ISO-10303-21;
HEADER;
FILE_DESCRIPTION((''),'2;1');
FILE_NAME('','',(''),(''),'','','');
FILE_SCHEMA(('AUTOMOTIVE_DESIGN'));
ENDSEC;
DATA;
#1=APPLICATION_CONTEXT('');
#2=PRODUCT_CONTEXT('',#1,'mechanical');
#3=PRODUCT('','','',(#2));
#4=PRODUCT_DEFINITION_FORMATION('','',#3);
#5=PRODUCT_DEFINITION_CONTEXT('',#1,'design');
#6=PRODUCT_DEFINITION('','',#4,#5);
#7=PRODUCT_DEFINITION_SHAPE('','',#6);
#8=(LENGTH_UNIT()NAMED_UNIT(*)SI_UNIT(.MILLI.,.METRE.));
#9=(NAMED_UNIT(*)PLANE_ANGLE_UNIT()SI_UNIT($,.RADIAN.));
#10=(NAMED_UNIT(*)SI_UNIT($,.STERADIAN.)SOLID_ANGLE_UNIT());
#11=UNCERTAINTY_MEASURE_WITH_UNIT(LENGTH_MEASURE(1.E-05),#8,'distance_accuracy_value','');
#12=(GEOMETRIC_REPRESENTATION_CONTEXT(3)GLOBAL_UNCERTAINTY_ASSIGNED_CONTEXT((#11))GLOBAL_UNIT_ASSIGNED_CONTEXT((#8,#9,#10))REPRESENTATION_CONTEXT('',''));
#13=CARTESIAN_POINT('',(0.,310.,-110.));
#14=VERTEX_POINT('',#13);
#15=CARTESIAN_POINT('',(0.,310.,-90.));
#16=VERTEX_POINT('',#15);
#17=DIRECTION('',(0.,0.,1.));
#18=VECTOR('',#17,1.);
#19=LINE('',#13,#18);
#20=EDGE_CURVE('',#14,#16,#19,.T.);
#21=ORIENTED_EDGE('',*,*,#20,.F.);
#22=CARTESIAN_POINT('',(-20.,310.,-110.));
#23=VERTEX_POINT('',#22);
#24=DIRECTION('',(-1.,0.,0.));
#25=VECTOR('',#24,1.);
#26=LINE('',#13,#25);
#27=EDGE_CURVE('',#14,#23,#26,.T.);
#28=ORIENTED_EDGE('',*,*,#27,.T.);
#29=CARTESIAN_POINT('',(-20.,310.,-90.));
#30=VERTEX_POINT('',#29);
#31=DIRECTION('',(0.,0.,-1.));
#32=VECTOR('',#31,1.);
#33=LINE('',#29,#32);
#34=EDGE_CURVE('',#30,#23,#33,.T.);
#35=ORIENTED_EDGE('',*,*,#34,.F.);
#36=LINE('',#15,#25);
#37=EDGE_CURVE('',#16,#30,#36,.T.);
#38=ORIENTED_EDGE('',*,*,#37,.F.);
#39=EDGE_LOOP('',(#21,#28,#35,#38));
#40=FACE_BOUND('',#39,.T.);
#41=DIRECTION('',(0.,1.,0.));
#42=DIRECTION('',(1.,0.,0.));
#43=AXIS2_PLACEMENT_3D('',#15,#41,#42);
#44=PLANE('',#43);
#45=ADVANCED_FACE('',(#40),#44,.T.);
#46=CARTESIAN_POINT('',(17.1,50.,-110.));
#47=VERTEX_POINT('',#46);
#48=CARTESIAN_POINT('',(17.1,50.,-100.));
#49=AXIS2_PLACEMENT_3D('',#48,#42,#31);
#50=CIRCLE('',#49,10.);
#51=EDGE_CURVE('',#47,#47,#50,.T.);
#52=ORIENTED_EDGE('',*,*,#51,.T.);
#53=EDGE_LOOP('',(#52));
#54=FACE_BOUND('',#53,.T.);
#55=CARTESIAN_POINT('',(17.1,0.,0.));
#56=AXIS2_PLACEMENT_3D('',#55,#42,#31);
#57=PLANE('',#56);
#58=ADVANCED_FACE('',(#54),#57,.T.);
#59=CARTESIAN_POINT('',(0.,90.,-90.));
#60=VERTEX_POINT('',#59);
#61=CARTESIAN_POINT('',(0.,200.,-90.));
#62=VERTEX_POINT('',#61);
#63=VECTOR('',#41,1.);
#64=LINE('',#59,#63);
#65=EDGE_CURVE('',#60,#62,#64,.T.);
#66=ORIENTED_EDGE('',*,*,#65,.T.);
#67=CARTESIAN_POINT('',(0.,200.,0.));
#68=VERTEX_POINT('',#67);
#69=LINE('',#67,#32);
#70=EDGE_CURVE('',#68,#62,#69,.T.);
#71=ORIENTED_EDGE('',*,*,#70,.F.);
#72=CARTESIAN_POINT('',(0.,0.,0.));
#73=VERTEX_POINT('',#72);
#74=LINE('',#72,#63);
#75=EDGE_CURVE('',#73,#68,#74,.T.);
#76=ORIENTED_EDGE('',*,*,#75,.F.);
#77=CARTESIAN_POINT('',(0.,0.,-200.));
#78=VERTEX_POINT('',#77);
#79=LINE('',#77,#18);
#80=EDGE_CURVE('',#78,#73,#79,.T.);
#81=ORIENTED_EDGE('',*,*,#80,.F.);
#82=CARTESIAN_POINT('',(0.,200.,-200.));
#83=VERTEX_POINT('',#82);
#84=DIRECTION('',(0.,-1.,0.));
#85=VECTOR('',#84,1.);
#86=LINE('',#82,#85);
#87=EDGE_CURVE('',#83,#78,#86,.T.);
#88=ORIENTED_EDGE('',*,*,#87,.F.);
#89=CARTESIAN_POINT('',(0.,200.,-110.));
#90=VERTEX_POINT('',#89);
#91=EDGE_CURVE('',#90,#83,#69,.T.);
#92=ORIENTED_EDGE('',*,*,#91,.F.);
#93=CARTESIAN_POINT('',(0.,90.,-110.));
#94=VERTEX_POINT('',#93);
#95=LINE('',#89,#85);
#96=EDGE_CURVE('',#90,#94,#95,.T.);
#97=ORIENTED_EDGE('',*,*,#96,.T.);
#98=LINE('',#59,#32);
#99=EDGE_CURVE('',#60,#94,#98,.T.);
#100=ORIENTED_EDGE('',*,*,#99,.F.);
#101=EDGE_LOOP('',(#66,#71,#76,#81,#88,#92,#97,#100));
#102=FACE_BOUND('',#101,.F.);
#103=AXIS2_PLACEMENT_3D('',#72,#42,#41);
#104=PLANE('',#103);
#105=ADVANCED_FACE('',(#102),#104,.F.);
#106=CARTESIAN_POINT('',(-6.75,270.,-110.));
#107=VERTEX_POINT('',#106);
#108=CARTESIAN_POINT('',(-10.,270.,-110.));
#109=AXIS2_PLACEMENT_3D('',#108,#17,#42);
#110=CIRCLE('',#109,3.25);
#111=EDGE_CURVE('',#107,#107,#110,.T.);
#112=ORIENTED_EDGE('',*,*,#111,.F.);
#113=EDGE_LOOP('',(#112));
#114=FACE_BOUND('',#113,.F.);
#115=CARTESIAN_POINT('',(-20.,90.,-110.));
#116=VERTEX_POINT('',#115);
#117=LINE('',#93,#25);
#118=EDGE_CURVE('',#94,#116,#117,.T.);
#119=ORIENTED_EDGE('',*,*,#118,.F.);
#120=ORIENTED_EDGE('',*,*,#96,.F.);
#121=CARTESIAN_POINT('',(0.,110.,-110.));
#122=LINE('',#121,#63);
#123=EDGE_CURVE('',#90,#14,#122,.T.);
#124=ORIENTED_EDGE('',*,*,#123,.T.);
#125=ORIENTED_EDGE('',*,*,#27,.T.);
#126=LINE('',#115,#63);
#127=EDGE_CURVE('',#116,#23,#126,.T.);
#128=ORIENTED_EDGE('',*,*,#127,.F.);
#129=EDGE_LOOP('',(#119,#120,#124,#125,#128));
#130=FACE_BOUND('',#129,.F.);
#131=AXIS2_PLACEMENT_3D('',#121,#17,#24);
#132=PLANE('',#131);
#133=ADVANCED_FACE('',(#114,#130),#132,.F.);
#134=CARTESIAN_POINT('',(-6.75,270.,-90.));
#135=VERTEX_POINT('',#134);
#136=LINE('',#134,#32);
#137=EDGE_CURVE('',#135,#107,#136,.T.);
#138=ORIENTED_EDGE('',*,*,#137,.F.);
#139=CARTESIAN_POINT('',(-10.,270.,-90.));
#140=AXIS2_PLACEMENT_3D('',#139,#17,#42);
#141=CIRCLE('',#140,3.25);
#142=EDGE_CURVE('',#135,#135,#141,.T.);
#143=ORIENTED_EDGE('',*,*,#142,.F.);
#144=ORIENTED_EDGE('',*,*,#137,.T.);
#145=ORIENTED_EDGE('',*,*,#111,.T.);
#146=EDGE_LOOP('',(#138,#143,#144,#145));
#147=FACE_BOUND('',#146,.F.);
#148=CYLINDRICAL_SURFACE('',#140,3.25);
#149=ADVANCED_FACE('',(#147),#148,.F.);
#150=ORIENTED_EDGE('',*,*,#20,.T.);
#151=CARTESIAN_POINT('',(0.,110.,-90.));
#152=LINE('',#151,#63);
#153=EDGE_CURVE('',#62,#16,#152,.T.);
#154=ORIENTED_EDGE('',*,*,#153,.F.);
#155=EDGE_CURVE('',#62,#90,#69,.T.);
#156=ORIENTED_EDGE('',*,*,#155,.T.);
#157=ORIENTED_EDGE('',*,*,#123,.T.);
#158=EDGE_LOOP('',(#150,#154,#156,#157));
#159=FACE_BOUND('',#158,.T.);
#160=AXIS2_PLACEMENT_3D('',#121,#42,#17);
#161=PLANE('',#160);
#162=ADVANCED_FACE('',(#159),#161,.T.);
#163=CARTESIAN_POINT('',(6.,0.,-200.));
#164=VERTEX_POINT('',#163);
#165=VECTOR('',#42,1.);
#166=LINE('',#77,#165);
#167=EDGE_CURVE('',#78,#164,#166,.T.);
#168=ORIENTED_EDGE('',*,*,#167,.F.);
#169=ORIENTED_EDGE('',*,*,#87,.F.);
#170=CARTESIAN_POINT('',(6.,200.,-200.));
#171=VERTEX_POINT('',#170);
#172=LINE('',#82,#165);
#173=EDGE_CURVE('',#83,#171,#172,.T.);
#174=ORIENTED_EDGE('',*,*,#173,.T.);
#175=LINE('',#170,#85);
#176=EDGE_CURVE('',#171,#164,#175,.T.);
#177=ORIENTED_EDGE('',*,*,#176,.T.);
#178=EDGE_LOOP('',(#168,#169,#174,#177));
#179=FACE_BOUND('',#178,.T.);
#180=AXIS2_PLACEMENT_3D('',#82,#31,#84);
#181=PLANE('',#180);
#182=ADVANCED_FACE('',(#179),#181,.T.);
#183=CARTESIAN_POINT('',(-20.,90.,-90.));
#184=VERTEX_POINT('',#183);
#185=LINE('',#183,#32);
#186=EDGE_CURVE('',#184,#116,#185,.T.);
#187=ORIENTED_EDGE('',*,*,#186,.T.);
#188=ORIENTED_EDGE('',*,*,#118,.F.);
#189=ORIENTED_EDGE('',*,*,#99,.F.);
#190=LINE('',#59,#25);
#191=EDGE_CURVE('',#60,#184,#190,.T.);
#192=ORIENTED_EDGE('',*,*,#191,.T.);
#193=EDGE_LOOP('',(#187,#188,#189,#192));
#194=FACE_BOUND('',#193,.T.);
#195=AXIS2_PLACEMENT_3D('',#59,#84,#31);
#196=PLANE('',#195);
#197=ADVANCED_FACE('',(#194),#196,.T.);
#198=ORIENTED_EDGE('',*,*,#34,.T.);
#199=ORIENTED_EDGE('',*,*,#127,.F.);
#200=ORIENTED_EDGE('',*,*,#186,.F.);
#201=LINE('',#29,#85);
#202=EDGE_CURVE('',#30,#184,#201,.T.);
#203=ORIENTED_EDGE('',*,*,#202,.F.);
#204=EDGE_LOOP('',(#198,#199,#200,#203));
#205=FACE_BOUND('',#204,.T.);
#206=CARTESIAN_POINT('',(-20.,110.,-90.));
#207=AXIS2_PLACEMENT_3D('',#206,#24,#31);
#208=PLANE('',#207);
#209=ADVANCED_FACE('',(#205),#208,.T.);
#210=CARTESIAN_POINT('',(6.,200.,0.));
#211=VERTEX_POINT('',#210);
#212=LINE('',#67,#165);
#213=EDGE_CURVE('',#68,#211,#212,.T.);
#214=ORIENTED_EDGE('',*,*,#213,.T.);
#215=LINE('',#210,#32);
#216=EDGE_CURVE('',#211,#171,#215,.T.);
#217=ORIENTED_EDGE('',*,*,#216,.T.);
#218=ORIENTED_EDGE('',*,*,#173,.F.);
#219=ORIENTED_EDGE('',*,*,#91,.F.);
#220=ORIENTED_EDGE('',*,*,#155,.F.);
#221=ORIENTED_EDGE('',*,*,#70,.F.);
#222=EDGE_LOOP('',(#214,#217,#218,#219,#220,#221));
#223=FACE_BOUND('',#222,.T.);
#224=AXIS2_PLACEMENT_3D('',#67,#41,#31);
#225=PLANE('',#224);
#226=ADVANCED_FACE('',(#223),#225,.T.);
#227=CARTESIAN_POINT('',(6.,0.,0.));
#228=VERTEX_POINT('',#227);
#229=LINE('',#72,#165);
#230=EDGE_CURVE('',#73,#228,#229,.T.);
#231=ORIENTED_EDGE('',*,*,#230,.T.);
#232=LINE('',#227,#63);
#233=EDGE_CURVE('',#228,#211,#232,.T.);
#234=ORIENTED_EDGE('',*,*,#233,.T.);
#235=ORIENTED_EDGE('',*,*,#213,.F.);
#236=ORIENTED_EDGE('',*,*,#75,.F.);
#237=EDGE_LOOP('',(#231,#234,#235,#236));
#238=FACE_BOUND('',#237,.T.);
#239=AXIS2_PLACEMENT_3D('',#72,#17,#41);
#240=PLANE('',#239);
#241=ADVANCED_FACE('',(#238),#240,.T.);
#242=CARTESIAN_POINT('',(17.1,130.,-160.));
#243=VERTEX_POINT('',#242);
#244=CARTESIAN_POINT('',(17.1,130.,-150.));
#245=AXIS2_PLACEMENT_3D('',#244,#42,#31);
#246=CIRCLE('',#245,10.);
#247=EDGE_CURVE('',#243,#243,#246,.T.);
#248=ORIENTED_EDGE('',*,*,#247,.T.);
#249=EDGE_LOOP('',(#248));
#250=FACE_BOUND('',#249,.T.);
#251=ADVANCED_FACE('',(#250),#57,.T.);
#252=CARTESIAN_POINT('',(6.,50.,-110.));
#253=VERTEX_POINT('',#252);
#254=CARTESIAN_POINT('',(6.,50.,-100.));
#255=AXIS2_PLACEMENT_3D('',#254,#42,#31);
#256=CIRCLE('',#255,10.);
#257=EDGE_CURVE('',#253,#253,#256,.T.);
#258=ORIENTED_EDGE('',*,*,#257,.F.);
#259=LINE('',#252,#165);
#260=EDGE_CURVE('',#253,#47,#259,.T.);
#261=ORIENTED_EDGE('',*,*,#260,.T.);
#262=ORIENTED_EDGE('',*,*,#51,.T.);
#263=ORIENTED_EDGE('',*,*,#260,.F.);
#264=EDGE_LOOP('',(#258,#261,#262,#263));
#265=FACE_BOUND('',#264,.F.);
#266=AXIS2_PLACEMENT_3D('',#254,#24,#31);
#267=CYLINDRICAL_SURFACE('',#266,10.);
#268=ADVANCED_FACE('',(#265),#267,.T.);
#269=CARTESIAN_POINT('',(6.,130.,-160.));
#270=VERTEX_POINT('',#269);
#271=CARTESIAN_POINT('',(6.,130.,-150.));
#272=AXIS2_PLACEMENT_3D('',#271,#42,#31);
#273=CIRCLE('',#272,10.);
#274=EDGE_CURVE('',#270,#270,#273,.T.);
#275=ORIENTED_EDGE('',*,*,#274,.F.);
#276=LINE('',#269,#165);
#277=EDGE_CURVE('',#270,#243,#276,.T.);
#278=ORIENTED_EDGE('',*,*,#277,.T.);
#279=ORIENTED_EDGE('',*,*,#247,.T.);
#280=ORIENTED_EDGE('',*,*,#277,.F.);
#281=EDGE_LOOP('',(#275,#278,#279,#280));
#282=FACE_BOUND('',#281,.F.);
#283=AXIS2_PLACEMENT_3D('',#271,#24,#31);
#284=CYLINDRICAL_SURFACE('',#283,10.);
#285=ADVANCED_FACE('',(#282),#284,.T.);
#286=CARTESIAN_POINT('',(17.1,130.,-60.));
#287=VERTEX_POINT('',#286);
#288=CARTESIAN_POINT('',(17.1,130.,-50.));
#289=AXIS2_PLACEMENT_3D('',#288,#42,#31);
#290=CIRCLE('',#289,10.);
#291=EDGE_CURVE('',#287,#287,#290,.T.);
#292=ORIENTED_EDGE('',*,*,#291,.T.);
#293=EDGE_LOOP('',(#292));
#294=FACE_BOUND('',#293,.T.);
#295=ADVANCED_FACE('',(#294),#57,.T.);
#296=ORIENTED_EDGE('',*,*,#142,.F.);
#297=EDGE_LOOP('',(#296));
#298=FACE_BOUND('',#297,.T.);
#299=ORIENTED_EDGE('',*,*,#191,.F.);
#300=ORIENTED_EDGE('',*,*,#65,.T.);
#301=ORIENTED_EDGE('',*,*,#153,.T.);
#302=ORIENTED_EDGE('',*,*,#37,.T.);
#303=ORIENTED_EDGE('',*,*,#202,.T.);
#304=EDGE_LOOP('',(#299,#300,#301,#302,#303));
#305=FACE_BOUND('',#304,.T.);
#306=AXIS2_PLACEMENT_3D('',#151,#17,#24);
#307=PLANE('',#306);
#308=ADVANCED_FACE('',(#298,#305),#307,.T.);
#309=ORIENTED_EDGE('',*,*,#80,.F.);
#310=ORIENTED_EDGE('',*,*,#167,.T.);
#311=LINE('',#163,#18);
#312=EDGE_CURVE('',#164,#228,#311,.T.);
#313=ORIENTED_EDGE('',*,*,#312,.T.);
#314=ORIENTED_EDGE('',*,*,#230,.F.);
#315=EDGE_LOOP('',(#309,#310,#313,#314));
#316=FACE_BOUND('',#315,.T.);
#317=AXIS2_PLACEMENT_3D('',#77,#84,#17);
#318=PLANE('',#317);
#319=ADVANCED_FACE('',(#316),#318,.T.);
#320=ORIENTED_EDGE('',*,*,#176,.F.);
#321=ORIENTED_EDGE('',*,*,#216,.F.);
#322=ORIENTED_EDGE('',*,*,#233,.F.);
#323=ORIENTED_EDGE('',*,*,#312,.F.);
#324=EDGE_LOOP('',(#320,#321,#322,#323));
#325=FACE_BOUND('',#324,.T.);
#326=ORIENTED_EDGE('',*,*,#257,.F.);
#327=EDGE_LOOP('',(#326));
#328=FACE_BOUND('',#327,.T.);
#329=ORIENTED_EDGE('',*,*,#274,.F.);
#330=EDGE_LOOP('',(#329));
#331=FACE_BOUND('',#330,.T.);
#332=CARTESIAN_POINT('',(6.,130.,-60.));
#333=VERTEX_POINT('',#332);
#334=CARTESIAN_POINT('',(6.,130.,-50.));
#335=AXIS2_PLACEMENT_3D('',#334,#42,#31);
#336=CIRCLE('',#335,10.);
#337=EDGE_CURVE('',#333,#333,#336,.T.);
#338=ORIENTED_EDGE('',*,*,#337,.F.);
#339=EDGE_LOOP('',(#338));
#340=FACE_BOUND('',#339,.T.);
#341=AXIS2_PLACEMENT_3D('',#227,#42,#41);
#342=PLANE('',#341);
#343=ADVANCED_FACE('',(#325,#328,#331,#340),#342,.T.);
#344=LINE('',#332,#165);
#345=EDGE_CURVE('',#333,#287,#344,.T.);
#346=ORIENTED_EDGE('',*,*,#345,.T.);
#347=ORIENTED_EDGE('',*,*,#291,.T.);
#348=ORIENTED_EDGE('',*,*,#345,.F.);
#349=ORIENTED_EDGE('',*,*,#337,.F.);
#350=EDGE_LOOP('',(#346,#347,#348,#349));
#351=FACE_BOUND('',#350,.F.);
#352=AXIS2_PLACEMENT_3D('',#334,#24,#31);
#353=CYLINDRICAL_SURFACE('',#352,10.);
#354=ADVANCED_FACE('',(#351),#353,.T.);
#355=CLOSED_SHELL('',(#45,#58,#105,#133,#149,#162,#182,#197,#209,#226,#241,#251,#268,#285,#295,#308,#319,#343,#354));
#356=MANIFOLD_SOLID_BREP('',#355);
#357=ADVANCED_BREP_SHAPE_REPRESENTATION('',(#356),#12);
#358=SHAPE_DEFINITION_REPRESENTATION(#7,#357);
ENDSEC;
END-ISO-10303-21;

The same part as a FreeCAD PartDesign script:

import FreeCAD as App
import Part
import Sketcher


def add_polygon(sketch, points):
    """Adds a closed chain of lines whose ends are joined by coincident constraints."""
    first, n = sketch.GeometryCount, len(points)
    for a, b in zip(points, points[1:] + points[:1]):
        sketch.addGeometry(Part.LineSegment(App.Vector(*a, 0), App.Vector(*b, 0)), False)
    for i in range(n):
        sketch.addConstraint(Sketcher.Constraint("Coincident", first + i, 2, first + (i + 1) % n, 1))

doc = App.newDocument("Part")
body = doc.addObject("PartDesign::Body", "Body")

sketch1 = body.newObject("Sketcher::SketchObject", "Sketch")
sketch1.AttachmentSupport = (doc.getObject("YZ_Plane"), [""])
sketch1.MapMode = "FlatFace"
add_polygon(sketch1, [(200, 0), (0, 0), (0, -200), (200, -200)])
sketch1.addConstraint(Sketcher.Constraint("Horizontal", 0))
sketch1.addConstraint(Sketcher.Constraint("Vertical", 1))
sketch1.addConstraint(Sketcher.Constraint("Horizontal", 2))
sketch1.addConstraint(Sketcher.Constraint("Vertical", 3))
sketch1.addConstraint(Sketcher.Constraint("Coincident", 0, 2, -1, 1))
sketch1.addConstraint(Sketcher.Constraint("Equal", 2, 1))
sketch1.addConstraint(Sketcher.Constraint("DistanceX", 0, 2, 0, 1, 200.0))
pad1 = body.newObject("PartDesign::Pad", "Pad")
pad1.Profile = sketch1
pad1.Length = 6

sketch2 = body.newObject("Sketcher::SketchObject", "Sketch001")
sketch2.AttachmentSupport = (doc.getObject("YZ_Plane"), [""])
sketch2.MapMode = "FlatFace"
sketch2.AttachmentOffset = App.Placement(App.Vector(0, 0, 6), App.Rotation())
sketch2.addGeometry(Part.Circle(App.Vector(130, -50, 0), App.Vector(0, 0, 1), 10), False)
sketch2.addGeometry(Part.Circle(App.Vector(130, -150, 0), App.Vector(0, 0, 1), 10), False)
sketch2.addGeometry(Part.Circle(App.Vector(50, -100, 0), App.Vector(0, 0, 1), 10), False)
sketch2.addConstraint(Sketcher.Constraint("Equal", 0, 1))
sketch2.addConstraint(Sketcher.Constraint("Equal", 1, 2))
sketch2.addConstraint(Sketcher.Constraint("Vertical", 0, 3, 1, 3))
sketch2.addConstraint(Sketcher.Constraint("Diameter", 0, 20.0))
sketch2.addConstraint(Sketcher.Constraint("DistanceY", 0, 3, -1, 1, 50.0))
sketch2.addConstraint(Sketcher.Constraint("DistanceX", -1, 1, 2, 3, 50.0))
sketch2.addConstraint(Sketcher.Constraint("DistanceY", 2, 3, -1, 1, 100.0))
sketch2.addConstraint(Sketcher.Constraint("DistanceY", 1, 3, 0, 3, 100.0))
sketch2.addConstraint(Sketcher.Constraint("DistanceX", 2, 3, 0, 3, 80.0))
pad2 = body.newObject("PartDesign::Pad", "Pad001")
pad2.Profile = sketch2
pad2.Length = 11.1

sketch3 = body.newObject("Sketcher::SketchObject", "Sketch002")
sketch3.AttachmentSupport = (doc.getObject("YZ_Plane"), [""])
sketch3.MapMode = "FlatFace"
add_polygon(sketch3, [(110, -90), (110, -110), (90, -110), (90, -90)])
sketch3.addConstraint(Sketcher.Constraint("Vertical", 0))
sketch3.addConstraint(Sketcher.Constraint("Horizontal", 1))
sketch3.addConstraint(Sketcher.Constraint("Vertical", 2))
sketch3.addConstraint(Sketcher.Constraint("Horizontal", 3))
sketch3.addConstraint(Sketcher.Constraint("Equal", 3, 0))
sketch3.addConstraint(Sketcher.Constraint("DistanceX", 1, 2, 1, 1, 20.0))
sketch3.addConstraint(Sketcher.Constraint("DistanceX", -1, 1, 1, 2, 90.0))
sketch3.addConstraint(Sketcher.Constraint("DistanceY", 2, 2, -1, 1, 90.0))
pad3 = body.newObject("PartDesign::Pad", "Pad002")
pad3.Profile = sketch3
pad3.Length = 20
pad3.Reversed = True

sketch4 = body.newObject("Sketcher::SketchObject", "Sketch003")
sketch4.AttachmentSupport = (doc.getObject("XZ_Plane"), [""])
sketch4.MapMode = "FlatFace"
sketch4.AttachmentOffset = App.Placement(App.Vector(0, 0, -110), App.Rotation())
add_polygon(sketch4, [(0, -90), (0, -110), (-20, -110), (-20, -90)])
sketch4.addConstraint(Sketcher.Constraint("Vertical", 0))
sketch4.addConstraint(Sketcher.Constraint("Horizontal", 1))
sketch4.addConstraint(Sketcher.Constraint("Vertical", 2))
sketch4.addConstraint(Sketcher.Constraint("Horizontal", 3))
sketch4.addConstraint(Sketcher.Constraint("PointOnObject", 0, 2, -2))
sketch4.addConstraint(Sketcher.Constraint("Equal", 3, 0))
sketch4.addConstraint(Sketcher.Constraint("DistanceX", 1, 2, 1, 1, 20.0))
sketch4.addConstraint(Sketcher.Constraint("DistanceY", 0, 2, -1, 1, 110.0))
pad4 = body.newObject("PartDesign::Pad", "Pad003")
pad4.Profile = sketch4
pad4.Length = 200
pad4.Reversed = True

sketch5 = body.newObject("Sketcher::SketchObject", "Sketch004")
sketch5.AttachmentSupport = (doc.getObject("XY_Plane"), [""])
sketch5.MapMode = "FlatFace"
sketch5.AttachmentOffset = App.Placement(App.Vector(0, 0, -90), App.Rotation())
sketch5.addGeometry(Part.Circle(App.Vector(-10, 270, 0), App.Vector(0, 0, 1), 3.25), False)
sketch5.addConstraint(Sketcher.Constraint("Diameter", 0, 6.5))
sketch5.addConstraint(Sketcher.Constraint("DistanceX", 0, 3, -1, 1, 10.0))
sketch5.addConstraint(Sketcher.Constraint("DistanceY", -1, 1, 0, 3, 270.0))
pocket1 = body.newObject("PartDesign::Pocket", "Pocket")
pocket1.Profile = sketch5
pocket1.Type = "UpToFirst"

doc.recompute()
